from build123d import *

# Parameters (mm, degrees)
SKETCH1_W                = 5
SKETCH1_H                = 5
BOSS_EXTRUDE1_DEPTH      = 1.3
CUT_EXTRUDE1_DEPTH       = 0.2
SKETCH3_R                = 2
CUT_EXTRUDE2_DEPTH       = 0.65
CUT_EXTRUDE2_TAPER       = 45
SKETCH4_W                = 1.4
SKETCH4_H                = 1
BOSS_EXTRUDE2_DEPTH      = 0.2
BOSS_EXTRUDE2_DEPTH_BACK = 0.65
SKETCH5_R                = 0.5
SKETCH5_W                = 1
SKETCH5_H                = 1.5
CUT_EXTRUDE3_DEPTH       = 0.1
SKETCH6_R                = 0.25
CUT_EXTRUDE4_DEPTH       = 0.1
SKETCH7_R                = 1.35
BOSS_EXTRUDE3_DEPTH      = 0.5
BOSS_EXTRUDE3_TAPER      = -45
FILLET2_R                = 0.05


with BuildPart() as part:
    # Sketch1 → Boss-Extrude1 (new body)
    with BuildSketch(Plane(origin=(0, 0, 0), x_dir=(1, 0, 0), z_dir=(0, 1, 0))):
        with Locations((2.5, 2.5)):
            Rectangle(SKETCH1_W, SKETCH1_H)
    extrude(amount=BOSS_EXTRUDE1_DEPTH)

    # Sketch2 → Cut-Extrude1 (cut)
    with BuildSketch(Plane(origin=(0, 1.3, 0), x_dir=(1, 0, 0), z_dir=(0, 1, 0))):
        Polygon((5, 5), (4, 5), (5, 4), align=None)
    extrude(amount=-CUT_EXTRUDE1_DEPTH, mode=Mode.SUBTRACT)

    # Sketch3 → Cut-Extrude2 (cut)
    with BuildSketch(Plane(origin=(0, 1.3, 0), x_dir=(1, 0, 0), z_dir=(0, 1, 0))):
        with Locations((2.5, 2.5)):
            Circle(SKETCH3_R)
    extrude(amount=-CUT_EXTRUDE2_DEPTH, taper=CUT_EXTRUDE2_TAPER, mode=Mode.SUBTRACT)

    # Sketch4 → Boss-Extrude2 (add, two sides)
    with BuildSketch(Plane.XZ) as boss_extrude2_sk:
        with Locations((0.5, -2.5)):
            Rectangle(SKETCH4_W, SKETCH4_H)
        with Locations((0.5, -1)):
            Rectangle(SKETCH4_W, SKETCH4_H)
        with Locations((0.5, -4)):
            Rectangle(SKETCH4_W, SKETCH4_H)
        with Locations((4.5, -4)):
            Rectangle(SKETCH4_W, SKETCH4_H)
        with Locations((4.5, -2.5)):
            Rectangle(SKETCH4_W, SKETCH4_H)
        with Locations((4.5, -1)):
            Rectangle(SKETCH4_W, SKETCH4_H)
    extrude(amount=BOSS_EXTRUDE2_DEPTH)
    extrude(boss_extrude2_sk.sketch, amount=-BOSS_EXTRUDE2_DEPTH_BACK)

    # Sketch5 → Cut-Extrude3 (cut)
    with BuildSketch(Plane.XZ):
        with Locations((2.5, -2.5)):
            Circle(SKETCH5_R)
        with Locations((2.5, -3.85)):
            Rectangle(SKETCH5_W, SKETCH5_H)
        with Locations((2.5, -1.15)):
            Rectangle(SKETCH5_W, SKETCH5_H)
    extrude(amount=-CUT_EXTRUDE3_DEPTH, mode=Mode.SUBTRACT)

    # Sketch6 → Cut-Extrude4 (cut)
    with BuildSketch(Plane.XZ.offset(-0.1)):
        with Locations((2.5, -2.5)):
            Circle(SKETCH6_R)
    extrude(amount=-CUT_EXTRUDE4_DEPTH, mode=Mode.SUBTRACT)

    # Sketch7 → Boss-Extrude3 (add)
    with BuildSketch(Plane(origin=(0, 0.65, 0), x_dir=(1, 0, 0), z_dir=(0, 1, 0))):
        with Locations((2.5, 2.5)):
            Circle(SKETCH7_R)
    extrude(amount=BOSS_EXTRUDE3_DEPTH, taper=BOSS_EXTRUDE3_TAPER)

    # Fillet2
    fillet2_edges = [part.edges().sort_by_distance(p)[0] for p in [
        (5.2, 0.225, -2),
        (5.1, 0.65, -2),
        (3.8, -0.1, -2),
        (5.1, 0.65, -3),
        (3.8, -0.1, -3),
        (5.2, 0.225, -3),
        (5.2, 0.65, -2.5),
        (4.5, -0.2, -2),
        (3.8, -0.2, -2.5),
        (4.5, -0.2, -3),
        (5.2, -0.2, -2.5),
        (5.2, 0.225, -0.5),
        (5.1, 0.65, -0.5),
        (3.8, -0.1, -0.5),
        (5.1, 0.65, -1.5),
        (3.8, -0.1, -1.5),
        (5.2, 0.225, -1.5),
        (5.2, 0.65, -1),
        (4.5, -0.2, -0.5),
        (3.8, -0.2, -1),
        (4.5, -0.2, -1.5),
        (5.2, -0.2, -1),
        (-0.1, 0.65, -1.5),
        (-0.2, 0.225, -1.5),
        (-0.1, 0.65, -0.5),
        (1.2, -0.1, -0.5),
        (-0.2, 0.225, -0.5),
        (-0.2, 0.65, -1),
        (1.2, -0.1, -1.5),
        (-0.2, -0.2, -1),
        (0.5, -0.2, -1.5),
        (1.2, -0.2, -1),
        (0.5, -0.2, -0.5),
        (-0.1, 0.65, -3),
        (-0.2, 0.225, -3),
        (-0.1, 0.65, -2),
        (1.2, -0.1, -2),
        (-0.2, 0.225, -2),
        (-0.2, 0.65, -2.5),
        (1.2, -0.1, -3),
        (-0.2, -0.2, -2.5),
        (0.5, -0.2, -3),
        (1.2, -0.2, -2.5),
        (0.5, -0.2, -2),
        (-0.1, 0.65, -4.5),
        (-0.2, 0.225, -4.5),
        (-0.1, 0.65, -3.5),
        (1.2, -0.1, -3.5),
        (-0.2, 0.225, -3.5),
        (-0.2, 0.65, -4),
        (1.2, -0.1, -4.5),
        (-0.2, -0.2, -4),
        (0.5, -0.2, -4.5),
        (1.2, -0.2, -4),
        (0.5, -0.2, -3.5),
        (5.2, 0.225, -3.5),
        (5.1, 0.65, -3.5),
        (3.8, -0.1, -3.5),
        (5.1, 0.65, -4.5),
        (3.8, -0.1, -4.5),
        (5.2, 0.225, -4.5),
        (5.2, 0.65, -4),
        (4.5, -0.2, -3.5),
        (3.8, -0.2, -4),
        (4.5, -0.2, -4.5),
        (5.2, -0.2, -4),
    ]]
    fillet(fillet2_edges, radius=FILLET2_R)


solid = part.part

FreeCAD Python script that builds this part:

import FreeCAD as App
import Part
import Sketcher


def edges_at(feature, points):
    """Names of the edges that pass closest to the given points."""
    edges = feature.Shape.Edges
    near = lambda p: min(range(len(edges)), key=lambda i: edges[i].distToShape(Part.Vertex(*p))[0])
    return sorted({f"Edge{near(p) + 1}" for p in points})


def add_polygon(sketch, points):
    """Adds a closed chain of lines whose ends are joined by coincident constraints."""
    first, n = sketch.GeometryCount, len(points)
    for a, b in zip(points, points[1:] + points[:1]):
        sketch.addGeometry(Part.LineSegment(App.Vector(*a, 0), App.Vector(*b, 0)), False)
    for i in range(n):
        sketch.addConstraint(Sketcher.Constraint("Coincident", first + i, 2, first + (i + 1) % n, 1))

doc = App.newDocument("Part")
body = doc.addObject("PartDesign::Body", "Body")

sketch1 = body.newObject("Sketcher::SketchObject", "Sketch")
sketch1.AttachmentSupport = (doc.getObject("XZ_Plane"), [""])
sketch1.MapMode = "FlatFace"
add_polygon(sketch1, [(0, -5), (0, 0), (5, 0), (5, -5)])
sketch1.addConstraint([
    Sketcher.Constraint("Vertical", 0),
    Sketcher.Constraint("Horizontal", 1),
    Sketcher.Constraint("Vertical", 2),
    Sketcher.Constraint("Horizontal", 3),
    Sketcher.Constraint("Coincident", 0, 2, -1, 1),
    Sketcher.Constraint("Equal", 3, 0),
    Sketcher.Constraint("DistanceX", 1, 1, 1, 2, 5.0),
])
pad1 = body.newObject("PartDesign::Pad", "Pad")
pad1.Profile = sketch1
pad1.Length = 1.3
pad1.Reversed = True

sketch2 = body.newObject("Sketcher::SketchObject", "Sketch001")
sketch2.AttachmentSupport = (doc.getObject("XZ_Plane"), [""])
sketch2.MapMode = "FlatFace"
sketch2.AttachmentOffset = App.Placement(App.Vector(0, 0, -1.3), App.Rotation())
add_polygon(sketch2, [(5, -5), (4, -5), (5, -4)])
sketch2.addConstraint([
    Sketcher.Constraint("Horizontal", 0),
    Sketcher.Constraint("Vertical", 2),
    Sketcher.Constraint("Equal", 0, 2),
    Sketcher.Constraint("DistanceX", 0, 2, 0, 1, 1.0),
    Sketcher.Constraint("DistanceX", -1, 1, 0, 2, 4.0),
    Sketcher.Constraint("DistanceY", 0, 2, -1, 1, 5.0),
])
pocket1 = body.newObject("PartDesign::Pocket", "Pocket")
pocket1.Profile = sketch2
pocket1.Length = 0.2
pocket1.Reversed = True

sketch3 = body.newObject("Sketcher::SketchObject", "Sketch002")
sketch3.AttachmentSupport = (doc.getObject("XZ_Plane"), [""])
sketch3.MapMode = "FlatFace"
sketch3.AttachmentOffset = App.Placement(App.Vector(0, 0, -1.3), App.Rotation())
sketch3.addGeometry(Part.Circle(App.Vector(2.5, -2.5, 0), App.Vector(0, 0, 1), 2), False)
sketch3.addConstraint([
    Sketcher.Constraint("Diameter", 0, 4.0),
    Sketcher.Constraint("DistanceX", -1, 1, 0, 3, 2.5),
    Sketcher.Constraint("DistanceY", 0, 3, -1, 1, 2.5),
])
pocket2 = body.newObject("PartDesign::Pocket", "Pocket001")
pocket2.Profile = sketch3
pocket2.Length = 0.65
pocket2.Reversed = True
pocket2.TaperAngle = -45

sketch4 = body.newObject("Sketcher::SketchObject", "Sketch003")
sketch4.AttachmentSupport = (doc.getObject("XZ_Plane"), [""])
sketch4.MapMode = "FlatFace"
add_polygon(sketch4, [(-0.2, -2), (-0.2, -3), (1.2, -3), (1.2, -2)])
add_polygon(sketch4, [(-0.2, -0.5), (-0.2, -1.5), (1.2, -1.5), (1.2, -0.5)])
add_polygon(sketch4, [(-0.2, -3.5), (-0.2, -4.5), (1.2, -4.5), (1.2, -3.5)])
add_polygon(sketch4, [(3.8, -3.5), (3.8, -4.5), (5.2, -4.5), (5.2, -3.5)])
add_polygon(sketch4, [(3.8, -2), (3.8, -3), (5.2, -3), (5.2, -2)])
add_polygon(sketch4, [(3.8, -0.5), (3.8, -1.5), (5.2, -1.5), (5.2, -0.5)])
sketch4.addConstraint([
    Sketcher.Constraint("Vertical", 0),
    Sketcher.Constraint("Horizontal", 1),
    Sketcher.Constraint("Vertical", 2),
    Sketcher.Constraint("Horizontal", 3),
    Sketcher.Constraint("Vertical", 4),
    Sketcher.Constraint("Horizontal", 5),
    Sketcher.Constraint("Vertical", 6),
    Sketcher.Constraint("Horizontal", 7),
    Sketcher.Constraint("Vertical", 8),
    Sketcher.Constraint("Horizontal", 9),
    Sketcher.Constraint("Vertical", 10),
    Sketcher.Constraint("Horizontal", 11),
    Sketcher.Constraint("Vertical", 12),
    Sketcher.Constraint("Horizontal", 13),
    Sketcher.Constraint("Vertical", 14),
    Sketcher.Constraint("Horizontal", 15),
    Sketcher.Constraint("Vertical", 16),
    Sketcher.Constraint("Horizontal", 17),
    Sketcher.Constraint("Vertical", 18),
    Sketcher.Constraint("Horizontal", 19),
    Sketcher.Constraint("Vertical", 20),
    Sketcher.Constraint("Horizontal", 21),
    Sketcher.Constraint("Vertical", 22),
    Sketcher.Constraint("Horizontal", 23),
    Sketcher.Constraint("Horizontal", 9, 2, 12, 2),
    Sketcher.Constraint("Horizontal", 11, 2, 14, 2),
    Sketcher.Constraint("Horizontal", 1, 2, 16, 2),
    Sketcher.Constraint("Horizontal", 3, 2, 18, 2),
    Sketcher.Constraint("Horizontal", 5, 2, 20, 2),
    Sketcher.Constraint("Horizontal", 7, 2, 22, 2),
    Sketcher.Constraint("Vertical", 3, 2, 4, 2),
    Sketcher.Constraint("Vertical", 2, 2, 5, 2),
    Sketcher.Constraint("Vertical", 7, 2, 8, 2),
    Sketcher.Constraint("Vertical", 6, 2, 9, 2),
    Sketcher.Constraint("Vertical", 15, 2, 16, 2),
    Sketcher.Constraint("Vertical", 14, 2, 17, 2),
    Sketcher.Constraint("Vertical", 19, 2, 20, 2),
    Sketcher.Constraint("Vertical", 18, 2, 21, 2),
    Sketcher.Constraint("Equal", 11, 13),
    Sketcher.Constraint("Equal", 2, 4),
    Sketcher.Constraint("Equal", 6, 8),
    Sketcher.Constraint("DistanceY", 0, 2, 0, 1, 1.0),
    Sketcher.Constraint("DistanceX", 1, 1, 1, 2, 1.4),
    Sketcher.Constraint("DistanceY", 0, 2, -1, 1, 3.0),
    Sketcher.Constraint("DistanceY", 8, 2, 4, 2, 3.0),
    Sketcher.Constraint("DistanceX", 9, 2, 13, 2, 4.0),
    Sketcher.Constraint("DistanceX", 0, 2, -1, 1, 0.2),
    Sketcher.Constraint("DistanceY", 4, 2, -1, 1, 1.5),
])
pad2 = body.newObject("PartDesign::Pad", "Pad001")
pad2.Profile = sketch4
pad2.Type = "TwoLengths"
pad2.Length = 0.2
pad2.Length2 = 0.65

sketch5 = body.newObject("Sketcher::SketchObject", "Sketch004")
sketch5.AttachmentSupport = (doc.getObject("XZ_Plane"), [""])
sketch5.MapMode = "FlatFace"
sketch5.addGeometry(Part.Circle(App.Vector(2.5, -2.5, 0), App.Vector(0, 0, 1), 0.5), False)
add_polygon(sketch5, [(2, -3.1), (2, -4.6), (3, -4.6), (3, -3.1)])
add_polygon(sketch5, [(2, -0.4), (2, -1.9), (3, -1.9), (3, -0.4)])
sketch5.addConstraint([
    Sketcher.Constraint("Vertical", 1),
    Sketcher.Constraint("Horizontal", 2),
    Sketcher.Constraint("Vertical", 3),
    Sketcher.Constraint("Horizontal", 4),
    Sketcher.Constraint("Vertical", 5),
    Sketcher.Constraint("Horizontal", 6),
    Sketcher.Constraint("Vertical", 7),
    Sketcher.Constraint("Horizontal", 8),
    Sketcher.Constraint("Vertical", 4, 2, 5, 2),
    Sketcher.Constraint("Vertical", 3, 2, 6, 2),
    Sketcher.Constraint("Equal", 3, 5),
    Sketcher.Constraint("Diameter", 0, 1.0),
    Sketcher.Constraint("DistanceX", 2, 1, 2, 2, 1.0),
    Sketcher.Constraint("DistanceY", 1, 2, 1, 1, 1.5),
    Sketcher.Constraint("DistanceX", -1, 1, 1, 2, 2.0),
    Sketcher.Constraint("DistanceX", -1, 1, 0, 3, 2.5),
    Sketcher.Constraint("DistanceY", 0, 3, -1, 1, 2.5),
    Sketcher.Constraint("DistanceY", 1, 2, -1, 1, 4.6),
    Sketcher.Constraint("DistanceY", 5, 2, -1, 1, 1.9),
])
pocket3 = body.newObject("PartDesign::Pocket", "Pocket002")
pocket3.Profile = sketch5
pocket3.Length = 0.1

sketch6 = body.newObject("Sketcher::SketchObject", "Sketch005")
sketch6.AttachmentSupport = (doc.getObject("XZ_Plane"), [""])
sketch6.MapMode = "FlatFace"
sketch6.AttachmentOffset = App.Placement(App.Vector(0, 0, -0.1), App.Rotation())
sketch6.addGeometry(Part.Circle(App.Vector(2.5, -2.5, 0), App.Vector(0, 0, 1), 0.25), False)
sketch6.addConstraint([
    Sketcher.Constraint("Diameter", 0, 0.5),
    Sketcher.Constraint("DistanceX", -1, 1, 0, 3, 2.5),
    Sketcher.Constraint("DistanceY", 0, 3, -1, 1, 2.5),
])
pocket4 = body.newObject("PartDesign::Pocket", "Pocket003")
pocket4.Profile = sketch6
pocket4.Length = 0.1

sketch7 = body.newObject("Sketcher::SketchObject", "Sketch006")
sketch7.AttachmentSupport = (doc.getObject("XZ_Plane"), [""])
sketch7.MapMode = "FlatFace"
sketch7.AttachmentOffset = App.Placement(App.Vector(0, 0, -0.65), App.Rotation())
sketch7.addGeometry(Part.Circle(App.Vector(2.5, -2.5, 0), App.Vector(0, 0, 1), 1.4), False)
sketch7.addConstraint([
    Sketcher.Constraint("Diameter", 0, 2.7),
    Sketcher.Constraint("DistanceX", -1, 1, 0, 3, 2.5),
    Sketcher.Constraint("DistanceY", 0, 3, -1, 1, 2.5),
])
pad3 = body.newObject("PartDesign::Pad", "Pad002")
pad3.Profile = sketch7
pad3.Length = 0.5
pad3.Reversed = True
pad3.TaperAngle = 45
doc.recompute()

fillet = body.newObject("PartDesign::Fillet", "Fillet")
fillet.Base = (pad3, edges_at(pad3, [
    (5.2, 0.225, -2),
    (5.1, 0.65, -2),
    (3.8, -0.1, -2),
    (5.1, 0.65, -3),
    (3.8, -0.1, -3),
    (5.2, 0.225, -3),
    (5.2, 0.65, -2.5),
    (4.5, -0.2, -2),
    (3.8, -0.2, -2.5),
    (4.5, -0.2, -3),
    (5.2, -0.2, -2.5),
    (5.2, 0.225, -0.5),
    (5.1, 0.65, -0.5),
    (3.8, -0.1, -0.5),
    (5.1, 0.65, -1.5),
    (3.8, -0.1, -1.5),
    (5.2, 0.225, -1.5),
    (5.2, 0.65, -1),
    (4.5, -0.2, -0.5),
    (3.8, -0.2, -1),
    (4.5, -0.2, -1.5),
    (5.2, -0.2, -1),
    (-0.1, 0.65, -1.5),
    (-0.2, 0.225, -1.5),
    (-0.1, 0.65, -0.5),
    (1.2, -0.1, -0.5),
    (-0.2, 0.225, -0.5),
    (-0.2, 0.65, -1),
    (1.2, -0.1, -1.5),
    (-0.2, -0.2, -1),
    (0.5, -0.2, -1.5),
    (1.2, -0.2, -1),
    (0.5, -0.2, -0.5),
    (-0.1, 0.65, -3),
    (-0.2, 0.225, -3),
    (-0.1, 0.65, -2),
    (1.2, -0.1, -2),
    (-0.2, 0.225, -2),
    (-0.2, 0.65, -2.5),
    (1.2, -0.1, -3),
    (-0.2, -0.2, -2.5),
    (0.5, -0.2, -3),
    (1.2, -0.2, -2.5),
    (0.5, -0.2, -2),
    (-0.1, 0.65, -4.5),
    (-0.2, 0.225, -4.5),
    (-0.1, 0.65, -3.5),
    (1.2, -0.1, -3.5),
    (-0.2, 0.225, -3.5),
    (-0.2, 0.65, -4),
    (1.2, -0.1, -4.5),
    (-0.2, -0.2, -4),
    (0.5, -0.2, -4.5),
    (1.2, -0.2, -4),
    (0.5, -0.2, -3.5),
    (5.2, 0.225, -3.5),
    (5.1, 0.65, -3.5),
    (3.8, -0.1, -3.5),
    (5.1, 0.65, -4.5),
    (3.8, -0.1, -4.5),
    (5.2, 0.225, -4.5),
    (5.2, 0.65, -4),
    (4.5, -0.2, -3.5),
    (3.8, -0.2, -4),
    (4.5, -0.2, -4.5),
    (5.2, -0.2, -4),
]))
fillet.Radius = 0.05

doc.recompute()
